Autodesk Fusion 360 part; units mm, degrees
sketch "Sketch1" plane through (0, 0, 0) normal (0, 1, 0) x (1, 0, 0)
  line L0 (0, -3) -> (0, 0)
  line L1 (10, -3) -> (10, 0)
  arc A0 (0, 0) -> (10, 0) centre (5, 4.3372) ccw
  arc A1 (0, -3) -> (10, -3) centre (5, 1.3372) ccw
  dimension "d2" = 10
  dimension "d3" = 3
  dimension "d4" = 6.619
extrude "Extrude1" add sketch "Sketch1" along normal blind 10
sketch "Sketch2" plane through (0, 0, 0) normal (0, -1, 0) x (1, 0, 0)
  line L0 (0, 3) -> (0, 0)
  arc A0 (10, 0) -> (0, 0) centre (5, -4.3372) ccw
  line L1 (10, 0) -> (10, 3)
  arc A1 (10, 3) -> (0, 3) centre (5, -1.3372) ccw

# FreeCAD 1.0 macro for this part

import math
import FreeCAD as App
import Part
import Sketcher
from FreeCAD import Vector

doc = App.newDocument("Part")
params = doc.addObject("Spreadsheet::Sheet", "Params")
for row, (alias, value) in enumerate([
    ("sketch1_height", "3 mm"),
    ("pad1_length", "10 mm"),
], start=1):
    params.set(f"A{row}", alias)
    params.set(f"B{row}", "=" + value)
    params.setAlias(f"B{row}", alias)

body = doc.addObject("PartDesign::Body", "Body")

# Sketch on XZ plane
sketch1 = doc.addObject("Sketcher::SketchObject", "Sketch")
body.addObject(sketch1)
sketch1.AttachmentSupport = (doc.XZ_Plane, [""])
sketch1.MapMode = "FlatFace"
sketch1.addGeometry(Part.LineSegment(Vector(0, 0, 0), Vector(0, 3, 0)), False)
sketch1.addGeometry(Part.ArcOfCircle(Part.Circle(Vector(5, -1.3372, 0), Vector(0, 0, 1), 6.619011), math.radians(40.939677), math.radians(139.060323)), False)
sketch1.addGeometry(Part.LineSegment(Vector(10, 3, 0), Vector(10, 0, 0)), False)
sketch1.addGeometry(Part.ArcOfCircle(Part.Circle(Vector(5, -4.3372, 0), Vector(0, 0, 1), 6.619011), math.radians(40.939677), math.radians(139.060323)), False)
sketch1.addConstraint(Sketcher.Constraint("Coincident", 0, 2, 1, 2))
sketch1.addConstraint(Sketcher.Constraint("Coincident", 1, 1, 2, 1))
sketch1.addConstraint(Sketcher.Constraint("Coincident", 2, 2, 3, 1))
sketch1.addConstraint(Sketcher.Constraint("Coincident", 3, 2, 0, 1))
sketch1.addConstraint(Sketcher.Constraint("Vertical", 0))
sketch1.addConstraint(Sketcher.Constraint("Vertical", 2))
sketch1.addConstraint(Sketcher.Constraint("Coincident", 3, 2, -1, 1))
sketch1.addConstraint(Sketcher.Constraint("Equal", 1, 3))
sketch1.addConstraint(Sketcher.Constraint("PointOnObject", 2, 2, -1))
sketch1.addConstraint(Sketcher.Constraint("Horizontal", 0, 2, 1, 1))
sketch1.addConstraint(Sketcher.Constraint("DistanceY", 0, 1, 0, 2, 3.0))
sketch1.addConstraint(Sketcher.Constraint("DistanceX", -1, 1, 1, 1, 10.0))
sketch1.addConstraint(Sketcher.Constraint("Radius", 1, 6.619))
sketch1.setExpression("Constraints[10]", "Params.sketch1_height")
pad1 = doc.addObject("PartDesign::Pad", "Pad")
body.addObject(pad1)
pad1.Profile = sketch1
pad1.setExpression("Length", "Params.pad1_length")
pad1.Reversed = True

doc.recompute()
